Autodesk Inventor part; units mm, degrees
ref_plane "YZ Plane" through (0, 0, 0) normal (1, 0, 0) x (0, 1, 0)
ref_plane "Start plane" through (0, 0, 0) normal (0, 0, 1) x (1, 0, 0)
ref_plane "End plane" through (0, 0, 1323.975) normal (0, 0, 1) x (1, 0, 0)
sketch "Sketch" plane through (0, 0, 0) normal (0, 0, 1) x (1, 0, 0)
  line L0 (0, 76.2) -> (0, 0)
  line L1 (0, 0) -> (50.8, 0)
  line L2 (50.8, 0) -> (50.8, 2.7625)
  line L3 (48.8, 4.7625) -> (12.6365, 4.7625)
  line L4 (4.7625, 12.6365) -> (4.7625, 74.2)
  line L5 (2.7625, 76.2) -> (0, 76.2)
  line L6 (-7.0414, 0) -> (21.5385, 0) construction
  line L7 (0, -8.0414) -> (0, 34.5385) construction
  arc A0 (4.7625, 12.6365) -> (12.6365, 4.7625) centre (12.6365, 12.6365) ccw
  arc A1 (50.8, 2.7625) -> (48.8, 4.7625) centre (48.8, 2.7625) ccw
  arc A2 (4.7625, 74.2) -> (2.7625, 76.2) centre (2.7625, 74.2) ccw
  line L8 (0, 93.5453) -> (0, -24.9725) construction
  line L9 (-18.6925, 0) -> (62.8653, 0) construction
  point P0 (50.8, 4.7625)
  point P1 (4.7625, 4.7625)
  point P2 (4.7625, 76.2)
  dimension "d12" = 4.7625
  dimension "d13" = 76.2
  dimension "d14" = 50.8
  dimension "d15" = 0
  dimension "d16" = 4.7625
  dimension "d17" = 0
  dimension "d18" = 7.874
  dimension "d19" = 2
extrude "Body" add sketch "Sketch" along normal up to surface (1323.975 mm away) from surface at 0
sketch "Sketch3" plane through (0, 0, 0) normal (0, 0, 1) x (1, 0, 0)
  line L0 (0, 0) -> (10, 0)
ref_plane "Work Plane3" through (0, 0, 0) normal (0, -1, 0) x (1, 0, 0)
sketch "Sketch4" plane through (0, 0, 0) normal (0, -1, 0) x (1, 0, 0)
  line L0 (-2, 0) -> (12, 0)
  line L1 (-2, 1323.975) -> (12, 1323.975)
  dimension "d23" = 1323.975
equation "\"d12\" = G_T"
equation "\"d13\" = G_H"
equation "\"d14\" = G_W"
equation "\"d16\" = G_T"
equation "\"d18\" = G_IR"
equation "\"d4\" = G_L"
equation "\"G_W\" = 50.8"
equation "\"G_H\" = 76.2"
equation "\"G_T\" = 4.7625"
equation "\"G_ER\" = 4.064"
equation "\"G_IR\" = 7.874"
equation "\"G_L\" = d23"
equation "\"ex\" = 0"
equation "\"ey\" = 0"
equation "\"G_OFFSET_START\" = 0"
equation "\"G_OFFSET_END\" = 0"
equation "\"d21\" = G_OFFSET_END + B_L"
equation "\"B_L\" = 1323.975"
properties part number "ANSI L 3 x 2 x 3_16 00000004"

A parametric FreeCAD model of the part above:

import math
import FreeCAD as App
import Part
import Sketcher
from FreeCAD import Vector
Q = App.Units.Quantity

doc = App.newDocument("Part")
body = doc.addObject("PartDesign::Body", "Body")

sketch1 = body.newObject("Sketcher::SketchObject", "Sketch")
sketch1.AttachmentSupport = (doc.getObject("XY_Plane"), [""])
sketch1.MapMode = "FlatFace"
sketch1.addGeometry([
    Part.LineSegment(Vector(2.8, 76.2, 0), Vector(0, 76.2, 0)),
    Part.LineSegment(Vector(0, 76.2, 0), Vector(0, 0, 0)),
    Part.LineSegment(Vector(0, 0, 0), Vector(50.8, 0, 0)),
    Part.LineSegment(Vector(50.8, 0, 0), Vector(50.8, 2.8, 0)),
    Part.ArcOfCircle(Part.Circle(Vector(48.8, 2.8, 0), Vector(0, 0, 1), 2), math.radians(0), math.radians(90)),
    Part.LineSegment(Vector(48.8, 4.8, 0), Vector(12.6, 4.8, 0)),
    Part.ArcOfCircle(Part.Circle(Vector(12.6, 12.6, 0), Vector(0, 0, 1), 7.9), math.radians(180), math.radians(270)),
    Part.LineSegment(Vector(4.8, 12.6, 0), Vector(4.8, 74.2, 0)),
    Part.ArcOfCircle(Part.Circle(Vector(2.8, 74.2, 0), Vector(0, 0, 1), 2), math.radians(0), math.radians(90)),
], False)
sketch1.addConstraint([
    Sketcher.Constraint("Coincident", 0, 2, 1, 1),
    Sketcher.Constraint("Coincident", 1, 2, 2, 1),
    Sketcher.Constraint("Coincident", 2, 2, 3, 1),
    Sketcher.Constraint("Tangent", 3, 2, 4, 1),
    Sketcher.Constraint("Tangent", 4, 2, 5, 1),
    Sketcher.Constraint("Tangent", 5, 2, 6, 2),
    Sketcher.Constraint("Tangent", 6, 1, 7, 1),
    Sketcher.Constraint("Tangent", 7, 2, 8, 1),
    Sketcher.Constraint("Tangent", 8, 2, 0, 1),
    Sketcher.Constraint("Horizontal", 0),
    Sketcher.Constraint("Vertical", 1),
    Sketcher.Constraint("Horizontal", 2),
    Sketcher.Constraint("Vertical", 3),
    Sketcher.Constraint("Horizontal", 5),
    Sketcher.Constraint("Vertical", 7),
    Sketcher.Constraint("Coincident", 1, 2, -1, 1),
    Sketcher.Constraint("Equal", 4, 8),
    Sketcher.Constraint("Equal", 0, 3),
    Sketcher.Constraint("DistanceX", 2, 1, 2, 2, Q("2 in")),
    Sketcher.Constraint("DistanceY", 1, 2, 1, 1, Q("3 in")),
    Sketcher.Constraint("Radius", 6, Q("0.31 in")),
    Sketcher.Constraint("Radius", 4, 2.0),
    Sketcher.Constraint("DistanceY", -1, 1, 4, 2, Q("0.1875 in")),
])
pad1 = body.newObject("PartDesign::Pad", "Pad")
pad1.Profile = sketch1
pad1.Length = Q("52.125 in")

doc.recompute()
